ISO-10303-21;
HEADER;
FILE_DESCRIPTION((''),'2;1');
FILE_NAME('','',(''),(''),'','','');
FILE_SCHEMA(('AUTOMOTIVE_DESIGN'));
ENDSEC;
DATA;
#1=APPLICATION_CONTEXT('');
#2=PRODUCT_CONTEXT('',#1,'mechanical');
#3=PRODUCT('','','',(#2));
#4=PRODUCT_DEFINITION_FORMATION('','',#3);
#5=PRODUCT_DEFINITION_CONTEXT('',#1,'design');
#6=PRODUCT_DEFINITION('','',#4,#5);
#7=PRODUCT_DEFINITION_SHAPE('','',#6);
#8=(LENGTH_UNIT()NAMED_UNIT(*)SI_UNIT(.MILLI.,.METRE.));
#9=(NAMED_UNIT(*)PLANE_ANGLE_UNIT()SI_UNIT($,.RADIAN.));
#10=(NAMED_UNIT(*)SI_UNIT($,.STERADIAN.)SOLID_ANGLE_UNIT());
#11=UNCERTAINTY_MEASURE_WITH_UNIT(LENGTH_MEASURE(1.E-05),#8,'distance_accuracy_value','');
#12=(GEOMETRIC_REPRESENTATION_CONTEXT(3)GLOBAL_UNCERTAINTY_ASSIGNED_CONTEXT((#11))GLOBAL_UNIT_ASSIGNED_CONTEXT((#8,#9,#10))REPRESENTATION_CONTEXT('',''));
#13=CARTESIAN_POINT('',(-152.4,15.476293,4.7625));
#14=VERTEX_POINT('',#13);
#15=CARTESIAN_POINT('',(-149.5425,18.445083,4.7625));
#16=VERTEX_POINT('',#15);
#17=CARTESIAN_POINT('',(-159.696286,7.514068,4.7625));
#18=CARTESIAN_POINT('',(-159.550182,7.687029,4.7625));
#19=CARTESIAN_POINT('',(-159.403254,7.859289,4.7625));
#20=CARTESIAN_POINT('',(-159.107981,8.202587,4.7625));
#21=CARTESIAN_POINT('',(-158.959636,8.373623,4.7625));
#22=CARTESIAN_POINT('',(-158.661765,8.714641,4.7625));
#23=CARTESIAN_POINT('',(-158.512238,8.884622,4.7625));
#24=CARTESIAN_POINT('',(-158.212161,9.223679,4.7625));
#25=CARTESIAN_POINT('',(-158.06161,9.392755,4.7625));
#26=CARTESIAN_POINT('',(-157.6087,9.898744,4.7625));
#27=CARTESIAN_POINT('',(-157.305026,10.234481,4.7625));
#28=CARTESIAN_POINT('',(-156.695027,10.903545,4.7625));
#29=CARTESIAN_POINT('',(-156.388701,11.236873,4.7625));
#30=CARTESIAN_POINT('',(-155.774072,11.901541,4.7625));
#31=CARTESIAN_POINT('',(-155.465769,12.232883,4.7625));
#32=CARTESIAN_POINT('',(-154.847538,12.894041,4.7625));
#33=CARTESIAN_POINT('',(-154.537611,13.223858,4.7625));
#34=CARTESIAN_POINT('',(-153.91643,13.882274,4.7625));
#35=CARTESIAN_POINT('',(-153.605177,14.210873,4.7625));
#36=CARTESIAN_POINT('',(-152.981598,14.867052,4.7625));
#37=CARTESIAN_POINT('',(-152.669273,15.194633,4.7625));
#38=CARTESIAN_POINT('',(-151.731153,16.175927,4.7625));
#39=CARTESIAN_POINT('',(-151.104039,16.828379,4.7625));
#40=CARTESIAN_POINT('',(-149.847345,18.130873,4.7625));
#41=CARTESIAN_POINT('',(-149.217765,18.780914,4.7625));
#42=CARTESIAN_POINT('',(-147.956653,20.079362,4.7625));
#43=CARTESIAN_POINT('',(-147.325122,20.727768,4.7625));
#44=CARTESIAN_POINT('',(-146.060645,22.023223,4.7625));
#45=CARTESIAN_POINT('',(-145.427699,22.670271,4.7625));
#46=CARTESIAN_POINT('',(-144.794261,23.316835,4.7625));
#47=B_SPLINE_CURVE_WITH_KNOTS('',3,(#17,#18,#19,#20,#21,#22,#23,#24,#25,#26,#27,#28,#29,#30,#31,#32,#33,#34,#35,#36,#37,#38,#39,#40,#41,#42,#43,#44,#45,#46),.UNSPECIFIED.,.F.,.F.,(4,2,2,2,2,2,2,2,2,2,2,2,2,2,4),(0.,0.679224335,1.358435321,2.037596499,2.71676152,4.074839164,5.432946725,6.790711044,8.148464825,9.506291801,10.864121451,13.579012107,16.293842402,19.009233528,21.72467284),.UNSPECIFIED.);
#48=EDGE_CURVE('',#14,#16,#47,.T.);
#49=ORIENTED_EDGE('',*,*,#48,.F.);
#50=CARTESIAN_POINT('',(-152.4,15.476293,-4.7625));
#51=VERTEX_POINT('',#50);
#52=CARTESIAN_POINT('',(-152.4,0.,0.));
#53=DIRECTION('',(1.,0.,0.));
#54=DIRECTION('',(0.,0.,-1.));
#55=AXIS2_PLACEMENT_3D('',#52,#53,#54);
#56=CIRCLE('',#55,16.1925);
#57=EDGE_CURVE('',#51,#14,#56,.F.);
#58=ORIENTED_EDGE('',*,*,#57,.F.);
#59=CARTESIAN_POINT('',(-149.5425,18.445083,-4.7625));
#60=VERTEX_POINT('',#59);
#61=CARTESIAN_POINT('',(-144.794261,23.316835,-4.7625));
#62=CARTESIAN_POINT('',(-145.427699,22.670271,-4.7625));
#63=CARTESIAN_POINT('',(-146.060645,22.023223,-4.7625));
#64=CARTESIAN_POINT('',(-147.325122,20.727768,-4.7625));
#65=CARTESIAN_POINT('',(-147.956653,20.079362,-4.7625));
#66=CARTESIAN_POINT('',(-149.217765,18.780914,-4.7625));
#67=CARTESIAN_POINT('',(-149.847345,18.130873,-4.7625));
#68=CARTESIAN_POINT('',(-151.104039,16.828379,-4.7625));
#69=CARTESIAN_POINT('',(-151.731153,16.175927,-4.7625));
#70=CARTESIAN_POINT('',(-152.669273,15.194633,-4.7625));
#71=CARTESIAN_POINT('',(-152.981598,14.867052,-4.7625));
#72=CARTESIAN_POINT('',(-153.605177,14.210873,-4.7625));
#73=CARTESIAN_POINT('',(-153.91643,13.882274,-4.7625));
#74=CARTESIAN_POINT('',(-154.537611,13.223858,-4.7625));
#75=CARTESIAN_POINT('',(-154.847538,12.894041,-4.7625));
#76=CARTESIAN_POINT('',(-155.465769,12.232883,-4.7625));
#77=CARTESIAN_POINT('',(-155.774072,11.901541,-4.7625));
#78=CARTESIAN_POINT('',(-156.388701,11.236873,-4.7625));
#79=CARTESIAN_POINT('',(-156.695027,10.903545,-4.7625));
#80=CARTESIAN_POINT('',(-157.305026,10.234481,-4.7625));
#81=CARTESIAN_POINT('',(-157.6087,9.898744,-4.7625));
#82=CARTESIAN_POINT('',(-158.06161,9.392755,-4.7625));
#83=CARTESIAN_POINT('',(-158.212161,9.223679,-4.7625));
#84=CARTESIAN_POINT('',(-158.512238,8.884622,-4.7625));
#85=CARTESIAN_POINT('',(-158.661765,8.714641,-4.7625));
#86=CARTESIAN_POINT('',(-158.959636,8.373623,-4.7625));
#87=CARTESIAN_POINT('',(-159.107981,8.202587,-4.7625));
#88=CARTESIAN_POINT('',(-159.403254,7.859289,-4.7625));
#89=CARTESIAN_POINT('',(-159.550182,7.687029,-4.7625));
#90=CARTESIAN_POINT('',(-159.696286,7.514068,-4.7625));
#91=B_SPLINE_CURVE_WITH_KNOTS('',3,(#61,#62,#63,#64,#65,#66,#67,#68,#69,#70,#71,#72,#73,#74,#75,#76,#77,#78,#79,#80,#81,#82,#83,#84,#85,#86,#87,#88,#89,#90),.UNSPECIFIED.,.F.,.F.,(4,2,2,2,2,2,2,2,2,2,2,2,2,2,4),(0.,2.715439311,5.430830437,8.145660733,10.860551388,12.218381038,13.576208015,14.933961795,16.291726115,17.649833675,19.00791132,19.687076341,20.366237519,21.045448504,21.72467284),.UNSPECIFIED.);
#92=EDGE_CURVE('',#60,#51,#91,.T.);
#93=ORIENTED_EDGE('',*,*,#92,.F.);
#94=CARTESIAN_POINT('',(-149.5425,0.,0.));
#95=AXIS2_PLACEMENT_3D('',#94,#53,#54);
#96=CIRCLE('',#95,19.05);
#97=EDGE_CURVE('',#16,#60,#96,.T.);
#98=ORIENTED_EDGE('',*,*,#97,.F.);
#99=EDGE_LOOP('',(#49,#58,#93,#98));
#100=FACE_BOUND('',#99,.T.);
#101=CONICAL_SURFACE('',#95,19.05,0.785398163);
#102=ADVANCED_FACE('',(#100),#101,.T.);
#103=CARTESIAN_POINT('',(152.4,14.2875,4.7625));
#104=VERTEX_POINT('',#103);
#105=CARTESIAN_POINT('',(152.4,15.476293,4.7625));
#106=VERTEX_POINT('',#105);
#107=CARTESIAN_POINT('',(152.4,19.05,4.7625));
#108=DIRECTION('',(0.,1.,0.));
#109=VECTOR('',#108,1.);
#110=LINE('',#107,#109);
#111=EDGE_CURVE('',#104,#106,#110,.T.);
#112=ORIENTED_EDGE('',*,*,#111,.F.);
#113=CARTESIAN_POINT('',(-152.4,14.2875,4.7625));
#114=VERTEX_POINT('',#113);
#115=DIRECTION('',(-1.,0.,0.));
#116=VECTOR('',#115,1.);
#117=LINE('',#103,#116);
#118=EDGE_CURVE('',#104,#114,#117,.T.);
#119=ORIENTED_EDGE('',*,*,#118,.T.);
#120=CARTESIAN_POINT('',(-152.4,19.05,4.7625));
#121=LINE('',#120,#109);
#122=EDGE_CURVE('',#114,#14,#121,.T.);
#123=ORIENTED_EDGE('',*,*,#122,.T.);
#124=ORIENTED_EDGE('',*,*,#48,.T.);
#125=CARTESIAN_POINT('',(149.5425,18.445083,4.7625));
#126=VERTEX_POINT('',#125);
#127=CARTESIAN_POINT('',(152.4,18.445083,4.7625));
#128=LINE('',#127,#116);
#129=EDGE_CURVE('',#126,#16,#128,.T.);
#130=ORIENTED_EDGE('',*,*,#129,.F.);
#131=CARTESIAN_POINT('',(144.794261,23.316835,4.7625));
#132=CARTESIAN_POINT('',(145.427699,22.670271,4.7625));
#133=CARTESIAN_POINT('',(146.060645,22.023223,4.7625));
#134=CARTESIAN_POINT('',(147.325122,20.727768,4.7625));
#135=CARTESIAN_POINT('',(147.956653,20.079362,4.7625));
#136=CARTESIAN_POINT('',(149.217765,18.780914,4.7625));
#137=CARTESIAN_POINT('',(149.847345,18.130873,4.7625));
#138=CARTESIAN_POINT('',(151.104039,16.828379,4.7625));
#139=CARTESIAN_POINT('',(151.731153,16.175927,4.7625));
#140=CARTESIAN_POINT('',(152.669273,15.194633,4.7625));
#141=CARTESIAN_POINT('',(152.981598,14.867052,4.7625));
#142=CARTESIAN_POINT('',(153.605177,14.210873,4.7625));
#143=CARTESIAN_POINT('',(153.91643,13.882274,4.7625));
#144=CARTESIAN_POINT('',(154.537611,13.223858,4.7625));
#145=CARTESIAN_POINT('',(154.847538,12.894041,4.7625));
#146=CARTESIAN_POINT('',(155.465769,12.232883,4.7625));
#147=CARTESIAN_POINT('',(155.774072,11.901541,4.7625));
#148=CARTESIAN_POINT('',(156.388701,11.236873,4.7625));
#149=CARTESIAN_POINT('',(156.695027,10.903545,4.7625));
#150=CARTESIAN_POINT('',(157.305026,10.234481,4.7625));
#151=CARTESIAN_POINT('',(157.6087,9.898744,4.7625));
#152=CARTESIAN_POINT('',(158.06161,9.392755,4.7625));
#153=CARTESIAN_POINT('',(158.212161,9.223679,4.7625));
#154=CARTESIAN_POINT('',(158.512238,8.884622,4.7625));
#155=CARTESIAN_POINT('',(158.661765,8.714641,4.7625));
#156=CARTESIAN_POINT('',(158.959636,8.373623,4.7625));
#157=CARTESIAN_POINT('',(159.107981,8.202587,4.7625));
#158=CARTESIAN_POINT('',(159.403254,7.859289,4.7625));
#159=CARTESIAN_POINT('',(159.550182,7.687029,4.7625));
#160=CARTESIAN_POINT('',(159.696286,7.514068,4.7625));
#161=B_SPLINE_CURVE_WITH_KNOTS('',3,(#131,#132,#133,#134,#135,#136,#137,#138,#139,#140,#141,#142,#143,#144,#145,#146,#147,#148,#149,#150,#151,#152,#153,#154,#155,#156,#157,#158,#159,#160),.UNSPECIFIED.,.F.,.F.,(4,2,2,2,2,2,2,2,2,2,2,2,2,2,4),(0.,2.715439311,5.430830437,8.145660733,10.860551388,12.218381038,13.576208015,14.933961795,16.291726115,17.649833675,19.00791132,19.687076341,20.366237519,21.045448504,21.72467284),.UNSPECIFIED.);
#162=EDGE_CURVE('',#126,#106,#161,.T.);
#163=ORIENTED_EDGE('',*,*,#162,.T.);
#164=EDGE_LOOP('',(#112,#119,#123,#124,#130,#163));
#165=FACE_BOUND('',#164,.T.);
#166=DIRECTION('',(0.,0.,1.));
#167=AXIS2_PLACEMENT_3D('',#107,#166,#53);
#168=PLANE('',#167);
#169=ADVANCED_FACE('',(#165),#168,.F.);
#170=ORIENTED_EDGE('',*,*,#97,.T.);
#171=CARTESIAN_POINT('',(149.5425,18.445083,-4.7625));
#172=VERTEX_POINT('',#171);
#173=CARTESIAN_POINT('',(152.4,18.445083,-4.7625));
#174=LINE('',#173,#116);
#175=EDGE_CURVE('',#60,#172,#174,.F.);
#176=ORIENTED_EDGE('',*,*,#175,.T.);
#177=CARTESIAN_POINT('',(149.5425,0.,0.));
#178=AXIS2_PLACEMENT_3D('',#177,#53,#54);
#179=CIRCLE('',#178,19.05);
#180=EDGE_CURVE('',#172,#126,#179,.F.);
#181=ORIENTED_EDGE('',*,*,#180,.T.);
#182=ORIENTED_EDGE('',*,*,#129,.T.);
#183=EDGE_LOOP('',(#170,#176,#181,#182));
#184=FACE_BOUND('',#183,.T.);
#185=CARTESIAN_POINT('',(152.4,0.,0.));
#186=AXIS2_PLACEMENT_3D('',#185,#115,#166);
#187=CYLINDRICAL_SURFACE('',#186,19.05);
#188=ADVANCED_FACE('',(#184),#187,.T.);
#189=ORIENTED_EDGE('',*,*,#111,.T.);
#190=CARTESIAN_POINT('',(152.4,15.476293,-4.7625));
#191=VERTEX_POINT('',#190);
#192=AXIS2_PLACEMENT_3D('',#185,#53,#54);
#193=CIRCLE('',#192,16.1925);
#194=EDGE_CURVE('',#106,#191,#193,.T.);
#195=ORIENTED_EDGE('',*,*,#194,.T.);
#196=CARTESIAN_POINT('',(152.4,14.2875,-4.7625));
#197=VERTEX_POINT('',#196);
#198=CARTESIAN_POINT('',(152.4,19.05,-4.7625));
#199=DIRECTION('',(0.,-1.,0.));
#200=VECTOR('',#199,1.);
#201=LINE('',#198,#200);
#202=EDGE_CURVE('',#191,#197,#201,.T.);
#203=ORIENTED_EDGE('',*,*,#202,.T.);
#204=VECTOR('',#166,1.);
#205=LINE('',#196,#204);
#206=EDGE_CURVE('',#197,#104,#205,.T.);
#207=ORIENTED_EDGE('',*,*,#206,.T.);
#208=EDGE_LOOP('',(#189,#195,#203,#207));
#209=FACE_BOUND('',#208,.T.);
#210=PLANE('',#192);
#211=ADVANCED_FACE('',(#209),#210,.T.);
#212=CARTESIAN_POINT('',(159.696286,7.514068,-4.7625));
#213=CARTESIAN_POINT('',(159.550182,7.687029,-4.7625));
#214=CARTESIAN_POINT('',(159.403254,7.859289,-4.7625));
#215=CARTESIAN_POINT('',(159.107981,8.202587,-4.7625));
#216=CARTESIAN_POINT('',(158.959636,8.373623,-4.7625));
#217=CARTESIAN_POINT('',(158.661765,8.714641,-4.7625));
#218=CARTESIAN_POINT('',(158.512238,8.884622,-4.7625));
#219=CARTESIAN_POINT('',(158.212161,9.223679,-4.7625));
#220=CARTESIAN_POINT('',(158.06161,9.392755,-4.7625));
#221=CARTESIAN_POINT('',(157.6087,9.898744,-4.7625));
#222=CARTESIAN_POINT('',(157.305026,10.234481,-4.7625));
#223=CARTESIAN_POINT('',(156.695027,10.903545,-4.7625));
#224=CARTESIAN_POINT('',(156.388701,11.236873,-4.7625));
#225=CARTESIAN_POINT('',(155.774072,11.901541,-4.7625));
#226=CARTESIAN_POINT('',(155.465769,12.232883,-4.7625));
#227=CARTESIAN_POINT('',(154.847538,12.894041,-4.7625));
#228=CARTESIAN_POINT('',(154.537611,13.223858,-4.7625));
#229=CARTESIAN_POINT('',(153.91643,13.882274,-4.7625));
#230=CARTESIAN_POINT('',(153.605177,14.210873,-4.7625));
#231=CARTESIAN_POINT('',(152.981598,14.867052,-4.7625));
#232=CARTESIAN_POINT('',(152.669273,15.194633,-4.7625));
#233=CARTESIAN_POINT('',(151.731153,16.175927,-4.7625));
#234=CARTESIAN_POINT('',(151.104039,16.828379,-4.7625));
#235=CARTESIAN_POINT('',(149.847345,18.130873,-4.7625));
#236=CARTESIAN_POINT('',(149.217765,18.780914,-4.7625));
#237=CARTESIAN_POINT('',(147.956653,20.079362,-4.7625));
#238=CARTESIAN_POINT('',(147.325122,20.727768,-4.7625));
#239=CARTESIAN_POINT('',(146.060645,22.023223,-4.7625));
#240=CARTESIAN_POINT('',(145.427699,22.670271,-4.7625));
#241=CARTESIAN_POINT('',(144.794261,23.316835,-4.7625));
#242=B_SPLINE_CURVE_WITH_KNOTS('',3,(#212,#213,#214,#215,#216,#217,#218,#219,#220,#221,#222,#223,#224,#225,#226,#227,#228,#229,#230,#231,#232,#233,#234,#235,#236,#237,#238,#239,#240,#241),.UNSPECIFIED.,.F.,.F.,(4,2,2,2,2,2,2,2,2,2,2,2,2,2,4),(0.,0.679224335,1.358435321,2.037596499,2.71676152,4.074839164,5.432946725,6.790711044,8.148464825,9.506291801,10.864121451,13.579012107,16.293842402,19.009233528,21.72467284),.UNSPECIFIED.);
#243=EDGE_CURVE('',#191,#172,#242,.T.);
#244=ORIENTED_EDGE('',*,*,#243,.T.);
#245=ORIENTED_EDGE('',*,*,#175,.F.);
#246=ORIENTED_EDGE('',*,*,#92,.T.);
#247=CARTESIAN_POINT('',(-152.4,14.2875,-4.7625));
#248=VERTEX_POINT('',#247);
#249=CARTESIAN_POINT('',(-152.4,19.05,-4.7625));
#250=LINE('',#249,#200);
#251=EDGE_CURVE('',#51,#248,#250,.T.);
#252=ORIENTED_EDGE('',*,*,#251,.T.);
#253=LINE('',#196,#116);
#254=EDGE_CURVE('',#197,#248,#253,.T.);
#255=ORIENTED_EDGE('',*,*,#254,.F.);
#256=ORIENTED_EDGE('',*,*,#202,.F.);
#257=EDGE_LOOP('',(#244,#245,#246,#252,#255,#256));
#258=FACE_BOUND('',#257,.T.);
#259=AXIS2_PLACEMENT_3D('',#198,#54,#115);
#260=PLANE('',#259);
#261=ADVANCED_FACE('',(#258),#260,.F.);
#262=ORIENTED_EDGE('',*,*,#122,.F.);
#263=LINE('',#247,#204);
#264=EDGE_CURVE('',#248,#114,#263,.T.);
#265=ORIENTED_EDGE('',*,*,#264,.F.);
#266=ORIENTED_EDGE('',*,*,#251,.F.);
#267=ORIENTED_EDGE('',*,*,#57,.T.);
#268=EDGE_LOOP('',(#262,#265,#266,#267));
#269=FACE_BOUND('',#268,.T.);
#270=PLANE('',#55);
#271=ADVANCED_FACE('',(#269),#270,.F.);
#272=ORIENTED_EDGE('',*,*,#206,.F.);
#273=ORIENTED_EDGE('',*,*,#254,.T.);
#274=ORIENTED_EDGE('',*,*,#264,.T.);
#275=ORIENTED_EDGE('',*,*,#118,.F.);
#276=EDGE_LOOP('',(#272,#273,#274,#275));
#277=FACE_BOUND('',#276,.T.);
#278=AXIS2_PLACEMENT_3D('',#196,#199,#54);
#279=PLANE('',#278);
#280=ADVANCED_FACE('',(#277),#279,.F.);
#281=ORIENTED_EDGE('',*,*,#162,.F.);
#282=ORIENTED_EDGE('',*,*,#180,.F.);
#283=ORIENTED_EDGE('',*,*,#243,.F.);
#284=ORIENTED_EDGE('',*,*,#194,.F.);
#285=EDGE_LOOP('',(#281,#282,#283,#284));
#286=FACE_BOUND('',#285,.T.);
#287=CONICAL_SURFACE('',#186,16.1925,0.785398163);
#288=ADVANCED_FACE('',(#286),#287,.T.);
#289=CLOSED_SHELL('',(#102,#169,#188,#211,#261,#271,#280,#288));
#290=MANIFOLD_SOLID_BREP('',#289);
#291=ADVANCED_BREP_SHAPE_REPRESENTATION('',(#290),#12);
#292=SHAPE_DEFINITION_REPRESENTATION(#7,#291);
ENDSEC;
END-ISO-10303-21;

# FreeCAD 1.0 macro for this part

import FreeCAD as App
import Part
import Sketcher
from FreeCAD import Vector
Q = App.Units.Quantity


def edges_at(feature, points):
    """Names of the edges that pass closest to the given points."""
    edges = feature.Shape.Edges
    near = lambda p: min(range(len(edges)), key=lambda i: edges[i].distToShape(Part.Vertex(*p))[0])
    return sorted({f"Edge{near(p) + 1}" for p in points})

doc = App.newDocument("Part")
body = doc.addObject("PartDesign::Body", "Body")

sketch1 = body.newObject("Sketcher::SketchObject", "Sketch")
sketch1.AttachmentSupport = (doc.getObject("YZ_Plane"), [""])
sketch1.MapMode = "FlatFace"
sketch1.addGeometry(Part.Circle(Vector(0, 0, 0), Vector(0, 0, 1), 19.05), False)
sketch1.addConstraint([
    Sketcher.Constraint("Coincident", 0, 3, -1, 1),
    Sketcher.Constraint("Diameter", 0, Q("1.5 in")),
])
pad1 = body.newObject("PartDesign::Pad", "Pad")
pad1.Profile = sketch1
pad1.Length = Q("12 in")
pad1.Midplane = True
doc.recompute()

chamfer = body.newObject("PartDesign::Chamfer", "Chamfer")
chamfer.Base = (pad1, edges_at(pad1, [(-152.4, 0, 19.05), (152.4, 0, 19.05)]))
chamfer.Size = Q("0.1125 in")

sketch2 = body.newObject("Sketcher::SketchObject", "Sketch001")
sketch2.AttachmentSupport = (doc.getObject("YZ_Plane"), [""])
sketch2.MapMode = "FlatFace"
sketch2.addGeometry([
    Part.LineSegment(Vector(19.05, -4.7625, 0), Vector(14.2875, -4.7625, 0)),
    Part.LineSegment(Vector(14.2875, -4.7625, 0), Vector(14.2875, 4.7625, 0)),
    Part.LineSegment(Vector(14.2875, 4.7625, 0), Vector(19.05, 4.7625, 0)),
    Part.LineSegment(Vector(19.05, 4.7625, 0), Vector(19.05, -4.7625, 0)),
], False)
sketch2.addConstraint([
    Sketcher.Constraint("Coincident", 0, 2, 1, 1),
    Sketcher.Constraint("Coincident", 1, 2, 2, 1),
    Sketcher.Constraint("Coincident", 2, 2, 3, 1),
    Sketcher.Constraint("Coincident", 3, 2, 0, 1),
    Sketcher.Constraint("Horizontal", 0),
    Sketcher.Constraint("Vertical", 1),
    Sketcher.Constraint("Horizontal", 2),
    Sketcher.Constraint("Vertical", 3),
    Sketcher.Constraint("DistanceX", 0, 2, 0, 1, Q("0.1875 in")),
    Sketcher.Constraint("DistanceY", 1, 1, 1, 2, Q("0.375 in")),
    Sketcher.Constraint("DistanceX", -1, 1, 2, 2, Q("0.75 in")),
    Sketcher.Constraint("DistanceY", 0, 2, -1, 1, Q("0.1875 in")),
])
pocket1 = body.newObject("PartDesign::Pocket", "Pocket")
pocket1.Profile = sketch2
pocket1.Type = "ThroughAll"
pocket1.Midplane = True

doc.recompute()
